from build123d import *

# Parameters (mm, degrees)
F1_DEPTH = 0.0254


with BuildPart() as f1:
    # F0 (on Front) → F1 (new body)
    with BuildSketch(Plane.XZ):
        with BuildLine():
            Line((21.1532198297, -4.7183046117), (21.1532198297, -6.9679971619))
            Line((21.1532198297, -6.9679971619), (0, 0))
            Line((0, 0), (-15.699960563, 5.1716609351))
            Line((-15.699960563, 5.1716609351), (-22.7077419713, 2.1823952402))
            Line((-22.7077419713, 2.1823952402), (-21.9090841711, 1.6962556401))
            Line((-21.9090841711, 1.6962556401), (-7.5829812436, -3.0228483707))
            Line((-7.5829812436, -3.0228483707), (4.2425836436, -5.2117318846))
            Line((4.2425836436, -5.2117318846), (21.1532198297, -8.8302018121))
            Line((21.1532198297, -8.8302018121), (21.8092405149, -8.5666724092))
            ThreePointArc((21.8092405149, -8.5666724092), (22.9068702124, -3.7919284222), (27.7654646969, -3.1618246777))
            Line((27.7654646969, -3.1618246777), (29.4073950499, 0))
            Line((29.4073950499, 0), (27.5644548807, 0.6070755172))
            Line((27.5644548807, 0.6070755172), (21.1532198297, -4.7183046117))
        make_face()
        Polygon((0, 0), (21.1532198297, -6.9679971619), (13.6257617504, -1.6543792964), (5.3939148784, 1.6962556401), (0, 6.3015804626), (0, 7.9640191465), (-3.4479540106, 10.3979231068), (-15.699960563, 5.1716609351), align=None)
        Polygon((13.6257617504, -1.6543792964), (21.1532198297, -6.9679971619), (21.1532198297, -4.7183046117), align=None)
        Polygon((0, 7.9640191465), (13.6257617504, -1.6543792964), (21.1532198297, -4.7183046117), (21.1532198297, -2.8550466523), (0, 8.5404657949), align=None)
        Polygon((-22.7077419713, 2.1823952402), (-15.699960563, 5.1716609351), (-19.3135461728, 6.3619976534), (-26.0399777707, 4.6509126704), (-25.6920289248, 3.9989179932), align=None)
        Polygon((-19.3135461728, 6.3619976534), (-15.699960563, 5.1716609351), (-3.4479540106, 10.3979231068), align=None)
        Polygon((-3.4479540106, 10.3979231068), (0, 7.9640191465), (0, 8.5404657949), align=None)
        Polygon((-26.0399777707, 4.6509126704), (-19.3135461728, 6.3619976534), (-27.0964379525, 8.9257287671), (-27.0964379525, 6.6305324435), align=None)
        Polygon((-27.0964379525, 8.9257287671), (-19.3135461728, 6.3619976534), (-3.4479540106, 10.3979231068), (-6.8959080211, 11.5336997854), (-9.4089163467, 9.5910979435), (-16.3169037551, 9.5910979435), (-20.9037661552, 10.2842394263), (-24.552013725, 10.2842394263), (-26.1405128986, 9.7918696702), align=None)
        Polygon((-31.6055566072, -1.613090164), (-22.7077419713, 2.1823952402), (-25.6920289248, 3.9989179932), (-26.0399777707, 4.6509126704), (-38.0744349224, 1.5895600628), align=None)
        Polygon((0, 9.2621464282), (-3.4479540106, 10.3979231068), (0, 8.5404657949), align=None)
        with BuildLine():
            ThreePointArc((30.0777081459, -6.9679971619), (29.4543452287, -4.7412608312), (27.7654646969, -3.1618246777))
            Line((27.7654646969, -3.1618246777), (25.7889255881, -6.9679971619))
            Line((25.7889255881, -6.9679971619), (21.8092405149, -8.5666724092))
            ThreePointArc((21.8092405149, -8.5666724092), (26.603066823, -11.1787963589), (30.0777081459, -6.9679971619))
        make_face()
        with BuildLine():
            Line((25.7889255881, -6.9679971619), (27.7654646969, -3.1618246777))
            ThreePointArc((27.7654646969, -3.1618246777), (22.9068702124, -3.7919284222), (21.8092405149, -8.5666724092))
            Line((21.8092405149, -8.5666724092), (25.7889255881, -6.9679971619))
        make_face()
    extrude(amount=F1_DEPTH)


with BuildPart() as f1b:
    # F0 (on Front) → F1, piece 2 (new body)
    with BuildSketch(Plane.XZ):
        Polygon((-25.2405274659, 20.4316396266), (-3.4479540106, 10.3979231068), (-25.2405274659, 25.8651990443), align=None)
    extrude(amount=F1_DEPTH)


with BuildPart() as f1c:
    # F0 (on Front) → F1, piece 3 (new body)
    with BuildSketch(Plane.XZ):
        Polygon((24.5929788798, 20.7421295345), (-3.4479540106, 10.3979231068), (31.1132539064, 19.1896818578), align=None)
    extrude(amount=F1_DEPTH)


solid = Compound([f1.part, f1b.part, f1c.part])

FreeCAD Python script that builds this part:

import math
import FreeCAD as App
import Part
import Sketcher

V = App.Vector
Q = App.Units.Quantity


def add_polygon(sketch, points):
    """Adds a closed chain of lines whose ends are joined by coincident constraints."""
    first, n = sketch.GeometryCount, len(points)
    for a, b in zip(points, points[1:] + points[:1]):
        sketch.addGeometry(Part.LineSegment(App.Vector(*a, 0), App.Vector(*b, 0)), False)
    for i in range(n):
        sketch.addConstraint(Sketcher.Constraint("Coincident", first + i, 2, first + (i + 1) % n, 1))

doc = App.newDocument("Part")
body = doc.addObject("PartDesign::Body", "Body")

sketch1 = doc.addObject("Sketcher::SketchObject", "Sketch")
body.addObject(sketch1)
sketch1.AttachmentSupport = (doc.XZ_Plane, [""])
sketch1.MapMode = "FlatFace"
sketch1.addGeometry(Part.LineSegment(V(21.2, -2.9, 0), V(0, 8.5, 0)), False)
sketch1.addGeometry(Part.LineSegment(V(0, 8.5, 0), V(0, 9.3, 0)), False)
sketch1.addGeometry(Part.LineSegment(V(0, 9.3, 0), V(-3.4, 10.4, 0)), False)
sketch1.addGeometry(Part.LineSegment(V(-3.4, 10.4, 0), V(-6.9, 11.5, 0)), False)
sketch1.addGeometry(Part.LineSegment(V(-6.9, 11.5, 0), V(-9.4, 9.6, 0)), False)
sketch1.addGeometry(Part.LineSegment(V(-9.4, 9.6, 0), V(-16.3, 9.6, 0)), False)
sketch1.addGeometry(Part.LineSegment(V(-16.3, 9.6, 0), V(-20.9, 10.3, 0)), False)
sketch1.addGeometry(Part.LineSegment(V(-20.9, 10.3, 0), V(-24.6, 10.3, 0)), False)
sketch1.addGeometry(Part.LineSegment(V(-24.6, 10.3, 0), V(-26.1, 9.8, 0)), False)
sketch1.addGeometry(Part.LineSegment(V(-26.1, 9.8, 0), V(-27.1, 8.9, 0)), False)
sketch1.addGeometry(Part.LineSegment(V(-27.1, 8.9, 0), V(-27.1, 6.6, 0)), False)
sketch1.addGeometry(Part.LineSegment(V(-27.1, 6.6, 0), V(-26, 4.7, 0)), False)
sketch1.addGeometry(Part.LineSegment(V(-26, 4.7, 0), V(-38.1, 1.6, 0)), False)
sketch1.addGeometry(Part.LineSegment(V(-38.1, 1.6, 0), V(-31.6, -1.6, 0)), False)
sketch1.addGeometry(Part.LineSegment(V(-31.6, -1.6, 0), V(-22.7, 2.2, 0)), False)
sketch1.addGeometry(Part.LineSegment(V(-22.7, 2.2, 0), V(-21.9, 1.7, 0)), False)
sketch1.addGeometry(Part.LineSegment(V(-21.9, 1.7, 0), V(-7.6, -3, 0)), False)
sketch1.addGeometry(Part.LineSegment(V(-7.6, -3, 0), V(4.2, -5.2, 0)), False)
sketch1.addGeometry(Part.LineSegment(V(4.2, -5.2, 0), V(21.2, -8.8, 0)), False)
sketch1.addGeometry(Part.LineSegment(V(21.2, -8.8, 0), V(21.8, -8.6, 0)), False)
sketch1.addGeometry(Part.ArcOfCircle(Part.Circle(V(25.8, -7, 0), V(0, 0, 1), 4.3), math.radians(-158), math.radians(0)), False)
sketch1.addGeometry(Part.ArcOfCircle(Part.Circle(V(25.8, -7, 0), V(0, 0, 1), 4.3), math.radians(0), math.radians(63)), False)
sketch1.addGeometry(Part.LineSegment(V(27.8, -3.2, 0), V(29.4, 0, 0)), False)
sketch1.addGeometry(Part.LineSegment(V(29.4, 0, 0), V(27.6, 0.6, 0)), False)
sketch1.addGeometry(Part.LineSegment(V(27.6, 0.6, 0), V(21.2, -4.7, 0)), False)
sketch1.addGeometry(Part.LineSegment(V(21.2, -4.7, 0), V(21.2, -2.9, 0)), False)
add_polygon(sketch1, [(0, 6.3), (0, 8), (13.6, -1.7), (5.4, 1.7)])
sketch1.addConstraint([
    Sketcher.Constraint("Coincident", 0, 2, 1, 1),
    Sketcher.Constraint("Coincident", 1, 2, 2, 1),
    Sketcher.Constraint("Coincident", 2, 2, 3, 1),
    Sketcher.Constraint("Coincident", 3, 2, 4, 1),
    Sketcher.Constraint("Coincident", 4, 2, 5, 1),
    Sketcher.Constraint("Coincident", 5, 2, 6, 1),
    Sketcher.Constraint("Coincident", 6, 2, 7, 1),
    Sketcher.Constraint("Coincident", 7, 2, 8, 1),
    Sketcher.Constraint("Coincident", 8, 2, 9, 1),
    Sketcher.Constraint("Coincident", 9, 2, 10, 1),
    Sketcher.Constraint("Coincident", 10, 2, 11, 1),
    Sketcher.Constraint("Coincident", 11, 2, 12, 1),
    Sketcher.Constraint("Coincident", 12, 2, 13, 1),
    Sketcher.Constraint("Coincident", 13, 2, 14, 1),
    Sketcher.Constraint("Coincident", 14, 2, 15, 1),
    Sketcher.Constraint("Coincident", 15, 2, 16, 1),
    Sketcher.Constraint("Coincident", 16, 2, 17, 1),
    Sketcher.Constraint("Coincident", 17, 2, 18, 1),
    Sketcher.Constraint("Coincident", 18, 2, 19, 1),
    Sketcher.Constraint("Coincident", 19, 2, 20, 1),
    Sketcher.Constraint("Tangent", 20, 2, 21, 1),
    Sketcher.Constraint("Coincident", 21, 2, 22, 1),
    Sketcher.Constraint("Coincident", 22, 2, 23, 1),
    Sketcher.Constraint("Coincident", 23, 2, 24, 1),
    Sketcher.Constraint("Coincident", 24, 2, 25, 1),
    Sketcher.Constraint("Coincident", 25, 2, 0, 1),
    Sketcher.Constraint("Vertical", 1),
    Sketcher.Constraint("Horizontal", 5),
    Sketcher.Constraint("Horizontal", 7),
    Sketcher.Constraint("Vertical", 10),
    Sketcher.Constraint("Vertical", 25),
    Sketcher.Constraint("Vertical", 26),
    Sketcher.Constraint("Equal", 20, 21),
    Sketcher.Constraint("PointOnObject", 0, 2, -2),
    Sketcher.Constraint("PointOnObject", 22, 2, -1),
    Sketcher.Constraint("PointOnObject", 26, 2, -2),
    Sketcher.Constraint("Parallel", 2, 3),
    Sketcher.Constraint("Parallel", 3, 16),
    Sketcher.Constraint("Parallel", 16, 23),
    Sketcher.Constraint("Horizontal", 21, 3, 20, 2),
    Sketcher.Constraint("Horizontal", 15, 2, 28, 2),
    Sketcher.Constraint("Vertical", 18, 2, 24, 2),
    Sketcher.Constraint("Equal", 2, 3),
    Sketcher.Constraint("Radius", 20, 4.288783),
    Sketcher.Constraint("DistanceY", 9, 2, 8, 2, Q("0.0341 in")),
    Sketcher.Constraint("DistanceY", 11, 2, 9, 2, Q("0.1682998 in")),
    Sketcher.Constraint("DistanceY", 1, 1, 1, 2, 0.721681),
    Sketcher.Constraint("DistanceY", 26, 1, 26, 2, 1.662439),
    Sketcher.Constraint("DistanceY", -1, 1, 3, 2, 11.5337),
    Sketcher.Constraint("DistanceY", 18, 2, -1, 1, 8.830202),
    Sketcher.Constraint("DistanceY", 4, 2, 3, 2, 1.942602),
    Sketcher.Constraint("DistanceX", 8, 2, 7, 2, 1.588499),
    Sketcher.Constraint("DistanceY", 21, 2, 23, 2, 3.7689),
    Sketcher.Constraint("Distance", 0, 24.02741),
    Sketcher.Constraint("Distance", 6, 4.638939),
    Sketcher.Constraint("Distance", 9, 1.289958),
    Sketcher.Constraint("Distance", 11, 2.243881),
    Sketcher.Constraint("Distance", 12, 12.417731),
    Sketcher.Constraint("Distance", 14, 9.673511),
    Sketcher.Constraint("Distance", 15, 0.934979),
    Sketcher.Constraint("Distance", 16, 15.083341),
    Sketcher.Constraint("Distance", 27, 16.678578),
    Sketcher.Constraint("DistanceX", 5, 2, 5, 1, 6.907987),
    Sketcher.Constraint("DistanceX", 7, 2, 7, 1, 3.648248),
    Sketcher.Constraint("DistanceY", 10, 2, 10, 1, 2.295196),
    Sketcher.Constraint("DistanceY", 25, 1, 25, 2, 1.863258),
    Sketcher.Constraint("DistanceX", 3, 2, -1, 1, 6.895908),
    Sketcher.Constraint("DistanceY", -1, 1, 6, 2, 10.284239),
    Sketcher.Constraint("DistanceY", -1, 1, 8, 2, 9.79187),
    Sketcher.Constraint("DistanceY", -1, 1, 12, 2, 1.58956),
    Sketcher.Constraint("DistanceY", 13, 2, -1, 1, 1.61309),
    Sketcher.Constraint("DistanceX", 14, 2, -1, 1, 22.707742),
    Sketcher.Constraint("DistanceX", 16, 2, -1, 1, 7.582981),
    Sketcher.Constraint("DistanceY", 16, 2, -1, 1, 3.022848),
    Sketcher.Constraint("DistanceY", 17, 2, -1, 1, 5.211732),
    Sketcher.Constraint("DistanceX", -1, 1, 18, 2, 21.15322),
    Sketcher.Constraint("DistanceX", -1, 1, 19, 2, 21.809241),
    Sketcher.Constraint("DistanceX", -1, 1, 20, 2, 30.077708),
    Sketcher.Constraint("DistanceY", -1, 1, 26, 2, 7.964019),
    Sketcher.Constraint("DistanceX", -1, 1, 27, 2, 13.625762),
    Sketcher.Constraint("DistanceY", 20, 3, 2, 2, 17.36592),
    Sketcher.Constraint("DistanceX", 4, 2, 3, 2, 2.513008),
    Sketcher.Constraint("DistanceY", 1, 2, 4, 2, 0.328952),
    Sketcher.Constraint("DistanceX", 3, 2, 17, 2, 11.138492),
    Sketcher.Constraint("DistanceX", 20, 3, 21, 2, 1.976539),
    Sketcher.Constraint("DistanceX", 21, 2, 22, 2, 1.64193),
    Sketcher.Constraint("DistanceX", 17, 2, 28, 2, 1.151331),
])
pad1 = doc.addObject("PartDesign::Pad", "Pad")
body.addObject(pad1)
pad1.Profile = sketch1
pad1.Length = Q("0.001 in")
body2 = doc.addObject("PartDesign::Body", "Body001")

sketch2 = doc.addObject("Sketcher::SketchObject", "Sketch001")
body2.addObject(sketch2)
sketch2.AttachmentSupport = (doc.getObject("XZ_Plane001"), [""])
sketch2.MapMode = "FlatFace"
add_polygon(sketch2, [(-25, 20), (-3, 10), (-25, 26)])
sketch2.addConstraint([
    Sketcher.Constraint("Vertical", 2),
    Sketcher.Constraint("DistanceY", 2, 2, 2, 1, 5.433559),
    Sketcher.Constraint("DistanceY", -1, 1, 1, 2, 25.865199),
    Sketcher.Constraint("Distance", 1, 26.723639),
    Sketcher.Constraint("Distance", 0, 23.991493),
    Sketcher.Constraint("DistanceX", 0, 2, -1, 1, 3.447954),
])
pad2 = doc.addObject("PartDesign::Pad", "Pad001")
body2.addObject(pad2)
pad2.Profile = sketch2
pad2.Length = Q("0.001 in")
body3 = doc.addObject("PartDesign::Body", "Body002")

sketch3 = doc.addObject("Sketcher::SketchObject", "Sketch002")
body3.addObject(sketch3)
sketch3.AttachmentSupport = (doc.getObject("XZ_Plane002"), [""])
sketch3.MapMode = "FlatFace"
add_polygon(sketch3, [(25, 21), (-3, 10), (31, 19)])
sketch3.addConstraint([
    Sketcher.Constraint("DistanceY", -1, 1, 1, 2, 19.189682),
    Sketcher.Constraint("DistanceX", -1, 1, 2, 2, 24.592979),
    Sketcher.Constraint("DistanceY", -1, 1, 2, 2, 20.74213),
    Sketcher.Constraint("DistanceY", 0, 2, 1, 2, 8.791759),
    Sketcher.Constraint("Distance", 0, 29.888067),
    Sketcher.Constraint("Distance", 1, 35.661914),
])
pad3 = doc.addObject("PartDesign::Pad", "Pad002")
body3.addObject(pad3)
pad3.Profile = sketch3
pad3.Length = Q("0.001 in")

doc.recompute()
